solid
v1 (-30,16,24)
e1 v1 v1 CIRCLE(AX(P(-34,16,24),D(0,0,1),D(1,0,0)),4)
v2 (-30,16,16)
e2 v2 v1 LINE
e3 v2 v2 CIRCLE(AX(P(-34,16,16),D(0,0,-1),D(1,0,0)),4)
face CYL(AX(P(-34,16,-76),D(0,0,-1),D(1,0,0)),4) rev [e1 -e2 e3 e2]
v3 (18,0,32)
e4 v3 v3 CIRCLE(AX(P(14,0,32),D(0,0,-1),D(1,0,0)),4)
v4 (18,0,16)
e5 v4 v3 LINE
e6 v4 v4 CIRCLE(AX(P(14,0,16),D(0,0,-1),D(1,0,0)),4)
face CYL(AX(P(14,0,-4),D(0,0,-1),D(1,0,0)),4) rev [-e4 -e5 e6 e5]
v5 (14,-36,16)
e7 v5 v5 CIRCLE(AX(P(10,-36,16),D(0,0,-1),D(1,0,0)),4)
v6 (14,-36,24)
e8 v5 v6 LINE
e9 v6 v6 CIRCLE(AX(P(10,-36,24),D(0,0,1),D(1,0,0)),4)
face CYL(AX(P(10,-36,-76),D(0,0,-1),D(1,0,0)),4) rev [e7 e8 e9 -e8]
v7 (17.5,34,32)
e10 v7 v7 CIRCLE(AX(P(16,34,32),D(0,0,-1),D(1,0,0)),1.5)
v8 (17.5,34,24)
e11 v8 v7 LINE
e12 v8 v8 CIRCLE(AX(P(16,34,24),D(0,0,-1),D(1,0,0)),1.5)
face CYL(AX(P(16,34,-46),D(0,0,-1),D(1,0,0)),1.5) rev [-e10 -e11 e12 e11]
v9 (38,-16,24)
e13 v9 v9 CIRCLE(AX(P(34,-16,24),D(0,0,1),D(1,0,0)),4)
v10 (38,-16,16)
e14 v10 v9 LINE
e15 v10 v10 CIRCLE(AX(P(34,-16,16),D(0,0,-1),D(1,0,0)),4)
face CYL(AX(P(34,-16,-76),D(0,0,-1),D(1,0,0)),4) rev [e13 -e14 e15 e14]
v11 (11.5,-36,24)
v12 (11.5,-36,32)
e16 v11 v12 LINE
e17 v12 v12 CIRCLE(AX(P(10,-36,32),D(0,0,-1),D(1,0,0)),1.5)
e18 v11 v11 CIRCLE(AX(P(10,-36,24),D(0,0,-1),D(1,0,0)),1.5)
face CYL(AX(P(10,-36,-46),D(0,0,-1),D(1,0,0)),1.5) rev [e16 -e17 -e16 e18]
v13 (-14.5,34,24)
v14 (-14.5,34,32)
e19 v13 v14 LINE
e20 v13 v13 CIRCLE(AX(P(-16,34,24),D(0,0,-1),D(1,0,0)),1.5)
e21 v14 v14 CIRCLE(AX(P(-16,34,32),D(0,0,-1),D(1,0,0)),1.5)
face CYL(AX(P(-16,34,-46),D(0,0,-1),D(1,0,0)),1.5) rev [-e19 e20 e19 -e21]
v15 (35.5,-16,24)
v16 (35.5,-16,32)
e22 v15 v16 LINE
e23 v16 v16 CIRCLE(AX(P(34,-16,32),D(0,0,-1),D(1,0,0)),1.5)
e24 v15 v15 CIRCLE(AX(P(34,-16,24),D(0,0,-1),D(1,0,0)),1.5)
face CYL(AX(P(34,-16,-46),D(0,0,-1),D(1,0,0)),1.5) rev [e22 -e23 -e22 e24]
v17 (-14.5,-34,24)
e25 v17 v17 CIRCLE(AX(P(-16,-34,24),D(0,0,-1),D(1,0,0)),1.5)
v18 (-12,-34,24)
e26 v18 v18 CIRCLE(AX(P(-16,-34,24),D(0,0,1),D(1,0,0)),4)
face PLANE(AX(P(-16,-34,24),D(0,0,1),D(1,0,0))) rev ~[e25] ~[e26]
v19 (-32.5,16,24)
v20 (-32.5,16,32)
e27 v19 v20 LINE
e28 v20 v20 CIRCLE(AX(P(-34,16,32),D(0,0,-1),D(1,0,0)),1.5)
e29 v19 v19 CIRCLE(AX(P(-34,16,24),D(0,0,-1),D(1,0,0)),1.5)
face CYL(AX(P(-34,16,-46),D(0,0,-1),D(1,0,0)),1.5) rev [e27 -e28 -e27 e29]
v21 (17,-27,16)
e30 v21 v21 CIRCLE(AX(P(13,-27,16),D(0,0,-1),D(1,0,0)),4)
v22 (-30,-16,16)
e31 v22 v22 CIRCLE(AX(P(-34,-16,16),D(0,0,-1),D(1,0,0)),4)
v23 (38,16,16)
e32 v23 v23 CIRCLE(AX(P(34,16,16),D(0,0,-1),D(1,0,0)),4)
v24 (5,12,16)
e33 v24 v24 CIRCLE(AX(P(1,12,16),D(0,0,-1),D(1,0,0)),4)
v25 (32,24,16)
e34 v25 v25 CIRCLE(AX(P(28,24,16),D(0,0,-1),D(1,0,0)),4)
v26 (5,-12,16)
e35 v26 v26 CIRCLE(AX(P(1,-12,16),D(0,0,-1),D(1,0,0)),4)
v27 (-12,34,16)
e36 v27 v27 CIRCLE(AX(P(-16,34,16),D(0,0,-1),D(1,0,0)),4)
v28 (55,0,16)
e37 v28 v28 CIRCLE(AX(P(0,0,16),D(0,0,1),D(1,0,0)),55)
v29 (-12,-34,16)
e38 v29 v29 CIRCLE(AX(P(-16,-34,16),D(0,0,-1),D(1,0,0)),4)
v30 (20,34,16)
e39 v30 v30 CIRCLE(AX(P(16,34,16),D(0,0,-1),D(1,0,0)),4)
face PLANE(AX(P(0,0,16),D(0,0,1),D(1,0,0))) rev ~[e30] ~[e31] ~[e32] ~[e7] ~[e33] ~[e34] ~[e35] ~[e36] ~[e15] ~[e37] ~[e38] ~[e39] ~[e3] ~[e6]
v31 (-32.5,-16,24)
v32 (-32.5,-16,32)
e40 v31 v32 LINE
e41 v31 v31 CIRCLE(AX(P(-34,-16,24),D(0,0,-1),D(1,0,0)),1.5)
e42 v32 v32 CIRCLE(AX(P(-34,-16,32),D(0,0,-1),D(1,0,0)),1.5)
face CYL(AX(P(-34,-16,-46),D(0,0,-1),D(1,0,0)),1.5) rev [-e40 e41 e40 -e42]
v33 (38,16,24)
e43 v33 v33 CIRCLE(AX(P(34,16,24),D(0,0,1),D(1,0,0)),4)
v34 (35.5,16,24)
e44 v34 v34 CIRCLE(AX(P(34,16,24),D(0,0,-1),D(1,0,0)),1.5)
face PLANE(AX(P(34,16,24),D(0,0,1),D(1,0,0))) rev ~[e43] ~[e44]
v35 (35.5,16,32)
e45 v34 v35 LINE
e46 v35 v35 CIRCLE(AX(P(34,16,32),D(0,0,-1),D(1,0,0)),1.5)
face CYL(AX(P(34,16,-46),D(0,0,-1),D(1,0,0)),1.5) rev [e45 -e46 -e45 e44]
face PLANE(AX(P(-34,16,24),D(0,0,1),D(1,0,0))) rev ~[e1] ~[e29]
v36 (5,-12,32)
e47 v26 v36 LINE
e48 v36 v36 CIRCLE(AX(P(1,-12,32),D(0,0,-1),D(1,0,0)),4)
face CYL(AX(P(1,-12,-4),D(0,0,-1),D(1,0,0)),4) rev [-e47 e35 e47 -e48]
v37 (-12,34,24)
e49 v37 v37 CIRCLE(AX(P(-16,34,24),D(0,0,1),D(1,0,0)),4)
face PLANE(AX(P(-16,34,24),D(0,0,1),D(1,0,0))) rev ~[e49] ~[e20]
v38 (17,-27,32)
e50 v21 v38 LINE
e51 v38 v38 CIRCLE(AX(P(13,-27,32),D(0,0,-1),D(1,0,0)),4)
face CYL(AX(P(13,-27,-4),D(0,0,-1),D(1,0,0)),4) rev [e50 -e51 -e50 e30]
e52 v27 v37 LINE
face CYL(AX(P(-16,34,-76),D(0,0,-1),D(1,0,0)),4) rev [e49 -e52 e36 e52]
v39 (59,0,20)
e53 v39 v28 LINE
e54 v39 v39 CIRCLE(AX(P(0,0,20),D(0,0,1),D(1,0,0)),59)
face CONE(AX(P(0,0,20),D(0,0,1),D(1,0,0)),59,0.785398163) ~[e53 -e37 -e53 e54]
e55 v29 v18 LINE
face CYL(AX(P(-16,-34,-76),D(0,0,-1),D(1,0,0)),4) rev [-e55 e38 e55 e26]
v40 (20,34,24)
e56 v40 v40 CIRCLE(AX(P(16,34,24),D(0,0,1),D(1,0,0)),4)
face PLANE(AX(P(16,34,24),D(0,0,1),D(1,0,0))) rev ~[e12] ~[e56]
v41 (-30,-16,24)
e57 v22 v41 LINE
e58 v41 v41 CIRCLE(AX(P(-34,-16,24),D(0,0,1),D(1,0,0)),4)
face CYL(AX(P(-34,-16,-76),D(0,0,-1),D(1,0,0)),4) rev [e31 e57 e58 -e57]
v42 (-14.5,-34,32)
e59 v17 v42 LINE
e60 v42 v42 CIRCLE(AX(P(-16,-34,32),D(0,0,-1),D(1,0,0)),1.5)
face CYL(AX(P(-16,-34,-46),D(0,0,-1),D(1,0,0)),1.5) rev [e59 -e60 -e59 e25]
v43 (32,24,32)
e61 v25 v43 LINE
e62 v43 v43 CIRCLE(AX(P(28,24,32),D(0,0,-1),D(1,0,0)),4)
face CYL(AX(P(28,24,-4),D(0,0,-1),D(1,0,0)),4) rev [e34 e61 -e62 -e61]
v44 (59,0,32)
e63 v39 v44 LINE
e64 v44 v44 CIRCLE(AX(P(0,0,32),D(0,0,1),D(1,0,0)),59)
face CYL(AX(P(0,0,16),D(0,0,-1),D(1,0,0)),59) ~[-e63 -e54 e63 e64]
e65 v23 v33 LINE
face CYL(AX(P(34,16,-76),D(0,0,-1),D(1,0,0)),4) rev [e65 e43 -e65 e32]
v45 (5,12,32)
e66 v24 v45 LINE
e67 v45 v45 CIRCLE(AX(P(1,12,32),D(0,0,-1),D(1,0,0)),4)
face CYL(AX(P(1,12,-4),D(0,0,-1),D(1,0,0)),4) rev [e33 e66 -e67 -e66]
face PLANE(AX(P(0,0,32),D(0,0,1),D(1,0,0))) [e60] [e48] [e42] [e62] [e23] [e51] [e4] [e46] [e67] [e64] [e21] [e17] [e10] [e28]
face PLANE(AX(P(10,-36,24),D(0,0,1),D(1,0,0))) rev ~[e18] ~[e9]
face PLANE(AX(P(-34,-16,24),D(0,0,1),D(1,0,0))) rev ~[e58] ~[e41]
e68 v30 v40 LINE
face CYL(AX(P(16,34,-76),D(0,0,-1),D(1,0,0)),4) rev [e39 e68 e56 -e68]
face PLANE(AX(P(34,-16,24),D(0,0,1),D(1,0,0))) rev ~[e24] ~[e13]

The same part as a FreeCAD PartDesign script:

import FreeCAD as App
import Part
import Sketcher

V = App.Vector
Q = App.Units.Quantity


def edges_at(feature, points):
    """Names of the edges that pass closest to the given points."""
    edges = feature.Shape.Edges
    near = lambda p: min(range(len(edges)), key=lambda i: edges[i].distToShape(Part.Vertex(*p))[0])
    return sorted({f"Edge{near(p) + 1}" for p in points})

doc = App.newDocument("Part")
body = doc.addObject("PartDesign::Body", "Body")

# Sketch on XY plane
sketch1 = body.newObject("Sketcher::SketchObject", "Sketch")
sketch1.AttachmentSupport = (doc.getObject("XY_Plane"), [""])
sketch1.MapMode = "FlatFace"
sketch1.AttachmentOffset = App.Placement(V(0, 0, -18), App.Rotation())
sketch1.addGeometry(Part.Circle(V(14, 0, 0), V(0, 0, 1), 4), False)
sketch1.addConstraint([
    Sketcher.Constraint("PointOnObject", 0, 3, -1),
    Sketcher.Constraint("Diameter", 0, Q("8 mm")),
    Sketcher.Constraint("DistanceX", -1, 1, 0, 3, Q("14 mm")),
])
pad1 = body.newObject("PartDesign::Pad", "Pad")
pad1.Profile = sketch1
pad1.Length = 100
body2 = doc.addObject("PartDesign::Body", "Body001")
body2.AllowCompound = True

# Sketch on XY plane
sketch2 = body2.newObject("Sketcher::SketchObject", "Sketch001")
sketch2.AttachmentSupport = (doc.getObject("XY_Plane001"), [""])
sketch2.MapMode = "FlatFace"
sketch2.AttachmentOffset = App.Placement(V(0, 0, -18), App.Rotation())
sketch2.addGeometry(Part.Circle(V(90, 0, 0), V(0, 0, 1), 4), False)
sketch2.addConstraint([
    Sketcher.Constraint("PointOnObject", 0, 3, -1),
    Sketcher.Constraint("Diameter", 0, Q("8 mm")),
    Sketcher.Constraint("DistanceX", -1, 1, 0, 3, Q("90 mm")),
])
pad2 = body2.newObject("PartDesign::Pad", "Pad001")
pad2.Profile = sketch2
pad2.Length = 100
doc.recompute()

boolean = body2.newObject("PartDesign::Boolean", "Boolean")
boolean.Type = "Fuse"
boolean.addObjects([body])
body3 = doc.addObject("PartDesign::Body", "Body002")

# Sketch on XY plane
sketch3 = body3.newObject("Sketcher::SketchObject", "Sketch002")
sketch3.AttachmentSupport = (doc.getObject("XY_Plane002"), [""])
sketch3.MapMode = "FlatFace"
sketch3.AttachmentOffset = App.Placement(V(0, 0, -60), App.Rotation())
sketch3.addGeometry(Part.Circle(V(-34, -16, 0), V(0, 0, 1), 1.5), False)
sketch3.addConstraint([
    Sketcher.Constraint("Diameter", 0, Q("3 mm")),
    Sketcher.Constraint("DistanceX", 0, 3, -1, 1, Q("34 mm")),
    Sketcher.Constraint("DistanceY", 0, 3, -1, 1, Q("16 mm")),
])
pad3 = body3.newObject("PartDesign::Pad", "Pad002")
pad3.Profile = sketch3
pad3.Length = 100
body4 = doc.addObject("PartDesign::Body", "Body003")

# Sketch on XY plane
sketch4 = body4.newObject("Sketcher::SketchObject", "Sketch003")
sketch4.AttachmentSupport = (doc.getObject("XY_Plane003"), [""])
sketch4.MapMode = "FlatFace"
sketch4.AttachmentOffset = App.Placement(V(0, 0, -60), App.Rotation())
sketch4.addGeometry(Part.Circle(V(34, -16, 0), V(0, 0, 1), 1.5), False)
sketch4.addConstraint([
    Sketcher.Constraint("Diameter", 0, Q("3 mm")),
    Sketcher.Constraint("DistanceX", -1, 1, 0, 3, Q("34 mm")),
    Sketcher.Constraint("DistanceY", 0, 3, -1, 1, Q("16 mm")),
])
pad4 = body4.newObject("PartDesign::Pad", "Pad003")
pad4.Profile = sketch4
pad4.Length = 100
body5 = doc.addObject("PartDesign::Body", "Body004")

# Sketch on XY plane
sketch5 = body5.newObject("Sketcher::SketchObject", "Sketch004")
sketch5.AttachmentSupport = (doc.getObject("XY_Plane004"), [""])
sketch5.MapMode = "FlatFace"
sketch5.AttachmentOffset = App.Placement(V(0, 0, -60), App.Rotation())
sketch5.addGeometry(Part.Circle(V(34, 16, 0), V(0, 0, 1), 1.5), False)
sketch5.addConstraint([
    Sketcher.Constraint("Diameter", 0, Q("3 mm")),
    Sketcher.Constraint("DistanceX", -1, 1, 0, 3, Q("34 mm")),
    Sketcher.Constraint("DistanceY", -1, 1, 0, 3, Q("16 mm")),
])
pad5 = body5.newObject("PartDesign::Pad", "Pad004")
pad5.Profile = sketch5
pad5.Length = 100
body6 = doc.addObject("PartDesign::Body", "Body005")

# Sketch on XY plane
sketch6 = body6.newObject("Sketcher::SketchObject", "Sketch005")
sketch6.AttachmentSupport = (doc.getObject("XY_Plane005"), [""])
sketch6.MapMode = "FlatFace"
sketch6.AttachmentOffset = App.Placement(V(0, 0, -60), App.Rotation())
sketch6.addGeometry(Part.Circle(V(16, 34, 0), V(0, 0, 1), 1.5), False)
sketch6.addConstraint([
    Sketcher.Constraint("Diameter", 0, Q("3 mm")),
    Sketcher.Constraint("DistanceX", -1, 1, 0, 3, Q("16 mm")),
    Sketcher.Constraint("DistanceY", -1, 1, 0, 3, Q("34 mm")),
])
pad6 = body6.newObject("PartDesign::Pad", "Pad005")
pad6.Profile = sketch6
pad6.Length = 100
body7 = doc.addObject("PartDesign::Body", "Body006")

# Sketch on XY plane
sketch7 = body7.newObject("Sketcher::SketchObject", "Sketch006")
sketch7.AttachmentSupport = (doc.getObject("XY_Plane006"), [""])
sketch7.MapMode = "FlatFace"
sketch7.AttachmentOffset = App.Placement(V(0, 0, -60), App.Rotation())
sketch7.addGeometry(Part.Circle(V(10, -36, 0), V(0, 0, 1), 1.5), False)
sketch7.addConstraint([
    Sketcher.Constraint("Diameter", 0, Q("3 mm")),
    Sketcher.Constraint("DistanceX", -1, 1, 0, 3, Q("10 mm")),
    Sketcher.Constraint("DistanceY", 0, 3, -1, 1, Q("36 mm")),
])
pad7 = body7.newObject("PartDesign::Pad", "Pad006")
pad7.Profile = sketch7
pad7.Length = 100
body8 = doc.addObject("PartDesign::Body", "Body007")

# Sketch on XY plane
sketch8 = body8.newObject("Sketcher::SketchObject", "Sketch007")
sketch8.AttachmentSupport = (doc.getObject("XY_Plane007"), [""])
sketch8.MapMode = "FlatFace"
sketch8.AttachmentOffset = App.Placement(V(0, 0, -60), App.Rotation())
sketch8.addGeometry(Part.Circle(V(-16, -34, 0), V(0, 0, 1), 1.5), False)
sketch8.addConstraint([
    Sketcher.Constraint("Diameter", 0, Q("3 mm")),
    Sketcher.Constraint("DistanceX", 0, 3, -1, 1, Q("16 mm")),
    Sketcher.Constraint("DistanceY", 0, 3, -1, 1, Q("34 mm")),
])
pad8 = body8.newObject("PartDesign::Pad", "Pad007")
pad8.Profile = sketch8
pad8.Length = 100
body9 = doc.addObject("PartDesign::Body", "Body008")

# Sketch on XY plane
sketch9 = body9.newObject("Sketcher::SketchObject", "Sketch008")
sketch9.AttachmentSupport = (doc.getObject("XY_Plane008"), [""])
sketch9.MapMode = "FlatFace"
sketch9.AttachmentOffset = App.Placement(V(0, 0, -60), App.Rotation())
sketch9.addGeometry(Part.Circle(V(-16, 34, 0), V(0, 0, 1), 1.5), False)
sketch9.addConstraint([
    Sketcher.Constraint("Diameter", 0, Q("3 mm")),
    Sketcher.Constraint("DistanceX", 0, 3, -1, 1, Q("16 mm")),
    Sketcher.Constraint("DistanceY", -1, 1, 0, 3, Q("34 mm")),
])
pad9 = body9.newObject("PartDesign::Pad", "Pad008")
pad9.Profile = sketch9
pad9.Length = 100
body10 = doc.addObject("PartDesign::Body", "Body009")
body10.AllowCompound = True

# Sketch on XY plane
sketch10 = body10.newObject("Sketcher::SketchObject", "Sketch009")
sketch10.AttachmentSupport = (doc.getObject("XY_Plane009"), [""])
sketch10.MapMode = "FlatFace"
sketch10.AttachmentOffset = App.Placement(V(0, 0, -60), App.Rotation())
sketch10.addGeometry(Part.Circle(V(-34, 16, 0), V(0, 0, 1), 1.5), False)
sketch10.addConstraint([
    Sketcher.Constraint("Diameter", 0, Q("3 mm")),
    Sketcher.Constraint("DistanceX", 0, 3, -1, 1, Q("34 mm")),
    Sketcher.Constraint("DistanceY", -1, 1, 0, 3, Q("16 mm")),
])
pad10 = body10.newObject("PartDesign::Pad", "Pad009")
pad10.Profile = sketch10
pad10.Length = 100
doc.recompute()

boolean2 = body10.newObject("PartDesign::Boolean", "Boolean001")
boolean2.Type = "Fuse"
boolean2.addObjects([body3])
doc.recompute()

boolean3 = body10.newObject("PartDesign::Boolean", "Boolean002")
boolean3.Type = "Fuse"
boolean3.addObjects([body4])
doc.recompute()

boolean4 = body10.newObject("PartDesign::Boolean", "Boolean003")
boolean4.Type = "Fuse"
boolean4.addObjects([body5])
doc.recompute()

boolean5 = body10.newObject("PartDesign::Boolean", "Boolean004")
boolean5.Type = "Fuse"
boolean5.addObjects([body6])
doc.recompute()

boolean6 = body10.newObject("PartDesign::Boolean", "Boolean005")
boolean6.Type = "Fuse"
boolean6.addObjects([body7])
doc.recompute()

boolean7 = body10.newObject("PartDesign::Boolean", "Boolean006")
boolean7.Type = "Fuse"
boolean7.addObjects([body8])
doc.recompute()

boolean8 = body10.newObject("PartDesign::Boolean", "Boolean007")
boolean8.Type = "Fuse"
boolean8.addObjects([body9])
body11 = doc.addObject("PartDesign::Body", "Body010")

# Sketch on XY plane
sketch11 = body11.newObject("Sketcher::SketchObject", "Sketch010")
sketch11.AttachmentSupport = (doc.getObject("XY_Plane010"), [""])
sketch11.MapMode = "FlatFace"
sketch11.AttachmentOffset = App.Placement(V(0, 0, -90), App.Rotation())
sketch11.addGeometry(Part.Circle(V(-16, 34, 0), V(0, 0, 1), 4), False)
sketch11.addConstraint([
    Sketcher.Constraint("Diameter", 0, Q("8 mm")),
    Sketcher.Constraint("DistanceX", 0, 3, -1, 1, Q("16 mm")),
    Sketcher.Constraint("DistanceY", -1, 1, 0, 3, Q("34 mm")),
])
pad11 = body11.newObject("PartDesign::Pad", "Pad010")
pad11.Profile = sketch11
pad11.Length = 100
body12 = doc.addObject("PartDesign::Body", "Body011")

# Sketch on XY plane
sketch12 = body12.newObject("Sketcher::SketchObject", "Sketch011")
sketch12.AttachmentSupport = (doc.getObject("XY_Plane011"), [""])
sketch12.MapMode = "FlatFace"
sketch12.AttachmentOffset = App.Placement(V(0, 0, -90), App.Rotation())
sketch12.addGeometry(Part.Circle(V(-16, -34, 0), V(0, 0, 1), 4), False)
sketch12.addConstraint([
    Sketcher.Constraint("Diameter", 0, Q("8 mm")),
    Sketcher.Constraint("DistanceX", 0, 3, -1, 1, Q("16 mm")),
    Sketcher.Constraint("DistanceY", 0, 3, -1, 1, Q("34 mm")),
])
pad12 = body12.newObject("PartDesign::Pad", "Pad011")
pad12.Profile = sketch12
pad12.Length = 100
body13 = doc.addObject("PartDesign::Body", "Body012")

# Sketch on XY plane
sketch13 = body13.newObject("Sketcher::SketchObject", "Sketch012")
sketch13.AttachmentSupport = (doc.getObject("XY_Plane012"), [""])
sketch13.MapMode = "FlatFace"
sketch13.AttachmentOffset = App.Placement(V(0, 0, -90), App.Rotation())
sketch13.addGeometry(Part.Circle(V(34, -16, 0), V(0, 0, 1), 4), False)
sketch13.addConstraint([
    Sketcher.Constraint("Diameter", 0, Q("8 mm")),
    Sketcher.Constraint("DistanceX", -1, 1, 0, 3, Q("34 mm")),
    Sketcher.Constraint("DistanceY", 0, 3, -1, 1, Q("16 mm")),
])
pad13 = body13.newObject("PartDesign::Pad", "Pad012")
pad13.Profile = sketch13
pad13.Length = 100
body14 = doc.addObject("PartDesign::Body", "Body013")

# Sketch on XY plane
sketch14 = body14.newObject("Sketcher::SketchObject", "Sketch013")
sketch14.AttachmentSupport = (doc.getObject("XY_Plane013"), [""])
sketch14.MapMode = "FlatFace"
sketch14.AttachmentOffset = App.Placement(V(0, 0, -90), App.Rotation())
sketch14.addGeometry(Part.Circle(V(16, 34, 0), V(0, 0, 1), 4), False)
sketch14.addConstraint([
    Sketcher.Constraint("Diameter", 0, Q("8 mm")),
    Sketcher.Constraint("DistanceX", -1, 1, 0, 3, Q("16 mm")),
    Sketcher.Constraint("DistanceY", -1, 1, 0, 3, Q("34 mm")),
])
pad14 = body14.newObject("PartDesign::Pad", "Pad013")
pad14.Profile = sketch14
pad14.Length = 100
body15 = doc.addObject("PartDesign::Body", "Body014")

# Sketch on XY plane
sketch15 = body15.newObject("Sketcher::SketchObject", "Sketch014")
sketch15.AttachmentSupport = (doc.getObject("XY_Plane014"), [""])
sketch15.MapMode = "FlatFace"
sketch15.AttachmentOffset = App.Placement(V(0, 0, -90), App.Rotation())
sketch15.addGeometry(Part.Circle(V(10, -36, 0), V(0, 0, 1), 4), False)
sketch15.addConstraint([
    Sketcher.Constraint("Diameter", 0, Q("8 mm")),
    Sketcher.Constraint("DistanceX", -1, 1, 0, 3, Q("10 mm")),
    Sketcher.Constraint("DistanceY", 0, 3, -1, 1, Q("36 mm")),
])
pad15 = body15.newObject("PartDesign::Pad", "Pad014")
pad15.Profile = sketch15
pad15.Length = 100
body16 = doc.addObject("PartDesign::Body", "Body015")

# Sketch on XY plane
sketch16 = body16.newObject("Sketcher::SketchObject", "Sketch015")
sketch16.AttachmentSupport = (doc.getObject("XY_Plane015"), [""])
sketch16.MapMode = "FlatFace"
sketch16.AttachmentOffset = App.Placement(V(0, 0, -90), App.Rotation())
sketch16.addGeometry(Part.Circle(V(-34, 16, 0), V(0, 0, 1), 4), False)
sketch16.addConstraint([
    Sketcher.Constraint("Diameter", 0, Q("8 mm")),
    Sketcher.Constraint("DistanceX", 0, 3, -1, 1, Q("34 mm")),
    Sketcher.Constraint("DistanceY", -1, 1, 0, 3, Q("16 mm")),
])
pad16 = body16.newObject("PartDesign::Pad", "Pad015")
pad16.Profile = sketch16
pad16.Length = 100
body17 = doc.addObject("PartDesign::Body", "Body016")

# Sketch on XY plane
sketch17 = body17.newObject("Sketcher::SketchObject", "Sketch016")
sketch17.AttachmentSupport = (doc.getObject("XY_Plane016"), [""])
sketch17.MapMode = "FlatFace"
sketch17.AttachmentOffset = App.Placement(V(0, 0, -90), App.Rotation())
sketch17.addGeometry(Part.Circle(V(34, 16, 0), V(0, 0, 1), 4), False)
sketch17.addConstraint([
    Sketcher.Constraint("Diameter", 0, Q("8 mm")),
    Sketcher.Constraint("DistanceX", -1, 1, 0, 3, Q("34 mm")),
    Sketcher.Constraint("DistanceY", -1, 1, 0, 3, Q("16 mm")),
])
pad17 = body17.newObject("PartDesign::Pad", "Pad016")
pad17.Profile = sketch17
pad17.Length = 100
body18 = doc.addObject("PartDesign::Body", "Body017")
body18.AllowCompound = True

# Sketch on XY plane
sketch18 = body18.newObject("Sketcher::SketchObject", "Sketch017")
sketch18.AttachmentSupport = (doc.getObject("XY_Plane017"), [""])
sketch18.MapMode = "FlatFace"
sketch18.AttachmentOffset = App.Placement(V(0, 0, -90), App.Rotation())
sketch18.addGeometry(Part.Circle(V(-34, -16, 0), V(0, 0, 1), 4), False)
sketch18.addConstraint([
    Sketcher.Constraint("Diameter", 0, Q("8 mm")),
    Sketcher.Constraint("DistanceX", 0, 3, -1, 1, Q("34 mm")),
    Sketcher.Constraint("DistanceY", 0, 3, -1, 1, Q("16 mm")),
])
pad18 = body18.newObject("PartDesign::Pad", "Pad017")
pad18.Profile = sketch18
pad18.Length = 100
doc.recompute()

boolean9 = body18.newObject("PartDesign::Boolean", "Boolean008")
boolean9.Type = "Fuse"
boolean9.addObjects([body11])
doc.recompute()

boolean10 = body18.newObject("PartDesign::Boolean", "Boolean009")
boolean10.Type = "Fuse"
boolean10.addObjects([body12])
doc.recompute()

boolean11 = body18.newObject("PartDesign::Boolean", "Boolean010")
boolean11.Type = "Fuse"
boolean11.addObjects([body13])
doc.recompute()

boolean12 = body18.newObject("PartDesign::Boolean", "Boolean011")
boolean12.Type = "Fuse"
boolean12.addObjects([body14])
doc.recompute()

boolean13 = body18.newObject("PartDesign::Boolean", "Boolean012")
boolean13.Type = "Fuse"
boolean13.addObjects([body15])
doc.recompute()

boolean14 = body18.newObject("PartDesign::Boolean", "Boolean013")
boolean14.Type = "Fuse"
boolean14.addObjects([body16])
doc.recompute()

boolean15 = body18.newObject("PartDesign::Boolean", "Boolean014")
boolean15.Type = "Fuse"
boolean15.addObjects([body17])
body19 = doc.addObject("PartDesign::Body", "Body018")

# Sketch on XY plane
sketch19 = body19.newObject("Sketcher::SketchObject", "Sketch018")
sketch19.AttachmentSupport = (doc.getObject("XY_Plane018"), [""])
sketch19.MapMode = "FlatFace"
sketch19.AttachmentOffset = App.Placement(V(0, 0, -20), App.Rotation())
sketch19.addGeometry(Part.Circle(V(103, 12, 0), V(0, 0, 1), 4), False)
sketch19.addConstraint([
    Sketcher.Constraint("Diameter", 0, Q("8 mm")),
    Sketcher.Constraint("DistanceX", -1, 1, 0, 3, Q("103 mm")),
    Sketcher.Constraint("DistanceY", -1, 1, 0, 3, Q("12 mm")),
])
pad19 = body19.newObject("PartDesign::Pad", "Pad018")
pad19.Profile = sketch19
pad19.Length = 20
body20 = doc.addObject("PartDesign::Body", "Body019")

# Sketch on XY plane
sketch20 = body20.newObject("Sketcher::SketchObject", "Sketch019")
sketch20.AttachmentSupport = (doc.getObject("XY_Plane019"), [""])
sketch20.MapMode = "FlatFace"
sketch20.AttachmentOffset = App.Placement(V(0, 0, -18), App.Rotation())
sketch20.addGeometry(Part.Circle(V(76, 24, 0), V(0, 0, 1), 4), False)
sketch20.addConstraint([
    Sketcher.Constraint("Diameter", 0, Q("8 mm")),
    Sketcher.Constraint("DistanceX", -1, 1, 0, 3, Q("76 mm")),
    Sketcher.Constraint("DistanceY", -1, 1, 0, 3, Q("24 mm")),
])
pad20 = body20.newObject("PartDesign::Pad", "Pad019")
pad20.Profile = sketch20
pad20.Length = 20
body21 = doc.addObject("PartDesign::Body", "Body020")

# Sketch on XY plane
sketch21 = body21.newObject("Sketcher::SketchObject", "Sketch020")
sketch21.AttachmentSupport = (doc.getObject("XY_Plane020"), [""])
sketch21.MapMode = "FlatFace"
sketch21.AttachmentOffset = App.Placement(V(0, 0, -18), App.Rotation())
sketch21.addGeometry(Part.Circle(V(91, -27, 0), V(0, 0, 1), 4), False)
sketch21.addConstraint([
    Sketcher.Constraint("Diameter", 0, Q("8 mm")),
    Sketcher.Constraint("DistanceX", -1, 1, 0, 3, Q("91 mm")),
    Sketcher.Constraint("DistanceY", 0, 3, -1, 1, Q("27 mm")),
])
pad21 = body21.newObject("PartDesign::Pad", "Pad020")
pad21.Profile = sketch21
pad21.Length = 20
body22 = doc.addObject("PartDesign::Body", "Body021")

# Sketch on XY plane
sketch22 = body22.newObject("Sketcher::SketchObject", "Sketch021")
sketch22.AttachmentSupport = (doc.getObject("XY_Plane021"), [""])
sketch22.MapMode = "FlatFace"
sketch22.AttachmentOffset = App.Placement(V(0, 0, -18), App.Rotation())
sketch22.addGeometry(Part.Circle(V(13, -27, 0), V(0, 0, 1), 4), False)
sketch22.addConstraint([
    Sketcher.Constraint("Diameter", 0, Q("8 mm")),
    Sketcher.Constraint("DistanceX", -1, 1, 0, 3, Q("13 mm")),
    Sketcher.Constraint("DistanceY", 0, 3, -1, 1, Q("27 mm")),
])
pad22 = body22.newObject("PartDesign::Pad", "Pad021")
pad22.Profile = sketch22
pad22.Length = 40
body23 = doc.addObject("PartDesign::Body", "Body022")

# Sketch on XY plane
sketch23 = body23.newObject("Sketcher::SketchObject", "Sketch022")
sketch23.AttachmentSupport = (doc.getObject("XY_Plane022"), [""])
sketch23.MapMode = "FlatFace"
sketch23.AttachmentOffset = App.Placement(V(0, 0, -18), App.Rotation())
sketch23.addGeometry(Part.Circle(V(28, 24, 0), V(0, 0, 1), 4), False)
sketch23.addConstraint([
    Sketcher.Constraint("Diameter", 0, Q("8 mm")),
    Sketcher.Constraint("DistanceX", -1, 1, 0, 3, Q("28 mm")),
    Sketcher.Constraint("DistanceY", -1, 1, 0, 3, Q("24 mm")),
])
pad23 = body23.newObject("PartDesign::Pad", "Pad022")
pad23.Profile = sketch23
pad23.Length = 40
body24 = doc.addObject("PartDesign::Body", "Body023")

# Sketch on XY plane
sketch24 = body24.newObject("Sketcher::SketchObject", "Sketch023")
sketch24.AttachmentSupport = (doc.getObject("XY_Plane023"), [""])
sketch24.MapMode = "FlatFace"
sketch24.AttachmentOffset = App.Placement(V(0, 0, -18), App.Rotation())
sketch24.addGeometry(Part.Circle(V(1, -12, 0), V(0, 0, 1), 4), False)
sketch24.addConstraint([
    Sketcher.Constraint("Diameter", 0, Q("8 mm")),
    Sketcher.Constraint("DistanceX", -1, 1, 0, 3, Q("1 mm")),
    Sketcher.Constraint("DistanceY", 0, 3, -1, 1, Q("12 mm")),
])
pad24 = body24.newObject("PartDesign::Pad", "Pad023")
pad24.Profile = sketch24
pad24.Length = 40
body25 = doc.addObject("PartDesign::Body", "Body024")

# Sketch on XY plane
sketch25 = body25.newObject("Sketcher::SketchObject", "Sketch024")
sketch25.AttachmentSupport = (doc.getObject("XY_Plane024"), [""])
sketch25.MapMode = "FlatFace"
sketch25.AttachmentOffset = App.Placement(V(0, 0, -18), App.Rotation())
sketch25.addGeometry(Part.Circle(V(1, 12, 0), V(0, 0, 1), 4), False)
sketch25.addConstraint([
    Sketcher.Constraint("Diameter", 0, Q("8 mm")),
    Sketcher.Constraint("DistanceX", -1, 1, 0, 3, Q("1 mm")),
    Sketcher.Constraint("DistanceY", -1, 1, 0, 3, Q("12 mm")),
])
pad25 = body25.newObject("PartDesign::Pad", "Pad024")
pad25.Profile = sketch25
pad25.Length = 40
body26 = doc.addObject("PartDesign::Body", "Body025")
body26.AllowCompound = True

# Sketch on XY plane
sketch26 = body26.newObject("Sketcher::SketchObject", "Sketch025")
sketch26.AttachmentSupport = (doc.getObject("XY_Plane025"), [""])
sketch26.MapMode = "FlatFace"
sketch26.AttachmentOffset = App.Placement(V(0, 0, -20), App.Rotation())
sketch26.addGeometry(Part.Circle(V(103, -12, 0), V(0, 0, 1), 4), False)
sketch26.addConstraint([
    Sketcher.Constraint("Diameter", 0, Q("8 mm")),
    Sketcher.Constraint("DistanceX", -1, 1, 0, 3, Q("103 mm")),
    Sketcher.Constraint("DistanceY", 0, 3, -1, 1, Q("12 mm")),
])
pad26 = body26.newObject("PartDesign::Pad", "Pad025")
pad26.Profile = sketch26
pad26.Length = 20
doc.recompute()

boolean16 = body26.newObject("PartDesign::Boolean", "Boolean015")
boolean16.Type = "Fuse"
boolean16.addObjects([body19])
doc.recompute()

boolean17 = body26.newObject("PartDesign::Boolean", "Boolean016")
boolean17.Type = "Fuse"
boolean17.addObjects([body20])
doc.recompute()

boolean18 = body26.newObject("PartDesign::Boolean", "Boolean017")
boolean18.Type = "Fuse"
boolean18.addObjects([body21])
doc.recompute()

boolean19 = body26.newObject("PartDesign::Boolean", "Boolean018")
boolean19.Type = "Fuse"
boolean19.addObjects([body22])
doc.recompute()

boolean20 = body26.newObject("PartDesign::Boolean", "Boolean019")
boolean20.Type = "Fuse"
boolean20.addObjects([body23])
doc.recompute()

boolean21 = body26.newObject("PartDesign::Boolean", "Boolean020")
boolean21.Type = "Fuse"
boolean21.addObjects([body24])
doc.recompute()

boolean22 = body26.newObject("PartDesign::Boolean", "Boolean021")
boolean22.Type = "Fuse"
boolean22.addObjects([body25])
body27 = doc.addObject("PartDesign::Body", "Body026")

# Sketch on XY plane
sketch27 = body27.newObject("Sketcher::SketchObject", "Sketch026")
sketch27.AttachmentSupport = (doc.getObject("XY_Plane026"), [""])
sketch27.MapMode = "FlatFace"
sketch27.AttachmentOffset = App.Placement(V(0, 0, 2), App.Rotation())
sketch27.addGeometry(Part.Circle(V(0, 0, 0), V(0, 0, 1), 59), False)
sketch27.addConstraint([
    Sketcher.Constraint("Coincident", 0, 3, -1, 1),
    Sketcher.Constraint("Diameter", 0, Q("118 mm")),
])
pad27 = body27.newObject("PartDesign::Pad", "Pad026")
pad27.Profile = sketch27
pad27.Length = 16
doc.recompute()

boolean23 = body27.newObject("PartDesign::Boolean", "Boolean022")
boolean23.Type = "Cut"
boolean23.addObjects([body26])
doc.recompute()

boolean24 = body27.newObject("PartDesign::Boolean", "Boolean023")
boolean24.Type = "Cut"
boolean24.addObjects([body18])
doc.recompute()

boolean25 = body27.newObject("PartDesign::Boolean", "Boolean024")
boolean25.Type = "Cut"
boolean25.addObjects([body10])
doc.recompute()

chamfer = body27.newObject("PartDesign::Chamfer", "Chamfer")
chamfer.Base = (boolean25, edges_at(boolean25, [(-59, 0, 2)]))
chamfer.Size = 4
doc.recompute()

boolean26 = body27.newObject("PartDesign::Boolean", "Boolean025")
boolean26.Type = "Cut"
boolean26.addObjects([body2])
body28 = doc.addObject("PartDesign::Body", "Body027")
doc.recompute()

body27.Placement = App.Placement(V(0, 0, 14), App.Rotation(V(0, 0, 1), 0))
boolean27 = body28.newObject("PartDesign::Boolean", "Boolean026")
boolean27.Type = "Fuse"
boolean27.addObjects([body27])

doc.recompute()
